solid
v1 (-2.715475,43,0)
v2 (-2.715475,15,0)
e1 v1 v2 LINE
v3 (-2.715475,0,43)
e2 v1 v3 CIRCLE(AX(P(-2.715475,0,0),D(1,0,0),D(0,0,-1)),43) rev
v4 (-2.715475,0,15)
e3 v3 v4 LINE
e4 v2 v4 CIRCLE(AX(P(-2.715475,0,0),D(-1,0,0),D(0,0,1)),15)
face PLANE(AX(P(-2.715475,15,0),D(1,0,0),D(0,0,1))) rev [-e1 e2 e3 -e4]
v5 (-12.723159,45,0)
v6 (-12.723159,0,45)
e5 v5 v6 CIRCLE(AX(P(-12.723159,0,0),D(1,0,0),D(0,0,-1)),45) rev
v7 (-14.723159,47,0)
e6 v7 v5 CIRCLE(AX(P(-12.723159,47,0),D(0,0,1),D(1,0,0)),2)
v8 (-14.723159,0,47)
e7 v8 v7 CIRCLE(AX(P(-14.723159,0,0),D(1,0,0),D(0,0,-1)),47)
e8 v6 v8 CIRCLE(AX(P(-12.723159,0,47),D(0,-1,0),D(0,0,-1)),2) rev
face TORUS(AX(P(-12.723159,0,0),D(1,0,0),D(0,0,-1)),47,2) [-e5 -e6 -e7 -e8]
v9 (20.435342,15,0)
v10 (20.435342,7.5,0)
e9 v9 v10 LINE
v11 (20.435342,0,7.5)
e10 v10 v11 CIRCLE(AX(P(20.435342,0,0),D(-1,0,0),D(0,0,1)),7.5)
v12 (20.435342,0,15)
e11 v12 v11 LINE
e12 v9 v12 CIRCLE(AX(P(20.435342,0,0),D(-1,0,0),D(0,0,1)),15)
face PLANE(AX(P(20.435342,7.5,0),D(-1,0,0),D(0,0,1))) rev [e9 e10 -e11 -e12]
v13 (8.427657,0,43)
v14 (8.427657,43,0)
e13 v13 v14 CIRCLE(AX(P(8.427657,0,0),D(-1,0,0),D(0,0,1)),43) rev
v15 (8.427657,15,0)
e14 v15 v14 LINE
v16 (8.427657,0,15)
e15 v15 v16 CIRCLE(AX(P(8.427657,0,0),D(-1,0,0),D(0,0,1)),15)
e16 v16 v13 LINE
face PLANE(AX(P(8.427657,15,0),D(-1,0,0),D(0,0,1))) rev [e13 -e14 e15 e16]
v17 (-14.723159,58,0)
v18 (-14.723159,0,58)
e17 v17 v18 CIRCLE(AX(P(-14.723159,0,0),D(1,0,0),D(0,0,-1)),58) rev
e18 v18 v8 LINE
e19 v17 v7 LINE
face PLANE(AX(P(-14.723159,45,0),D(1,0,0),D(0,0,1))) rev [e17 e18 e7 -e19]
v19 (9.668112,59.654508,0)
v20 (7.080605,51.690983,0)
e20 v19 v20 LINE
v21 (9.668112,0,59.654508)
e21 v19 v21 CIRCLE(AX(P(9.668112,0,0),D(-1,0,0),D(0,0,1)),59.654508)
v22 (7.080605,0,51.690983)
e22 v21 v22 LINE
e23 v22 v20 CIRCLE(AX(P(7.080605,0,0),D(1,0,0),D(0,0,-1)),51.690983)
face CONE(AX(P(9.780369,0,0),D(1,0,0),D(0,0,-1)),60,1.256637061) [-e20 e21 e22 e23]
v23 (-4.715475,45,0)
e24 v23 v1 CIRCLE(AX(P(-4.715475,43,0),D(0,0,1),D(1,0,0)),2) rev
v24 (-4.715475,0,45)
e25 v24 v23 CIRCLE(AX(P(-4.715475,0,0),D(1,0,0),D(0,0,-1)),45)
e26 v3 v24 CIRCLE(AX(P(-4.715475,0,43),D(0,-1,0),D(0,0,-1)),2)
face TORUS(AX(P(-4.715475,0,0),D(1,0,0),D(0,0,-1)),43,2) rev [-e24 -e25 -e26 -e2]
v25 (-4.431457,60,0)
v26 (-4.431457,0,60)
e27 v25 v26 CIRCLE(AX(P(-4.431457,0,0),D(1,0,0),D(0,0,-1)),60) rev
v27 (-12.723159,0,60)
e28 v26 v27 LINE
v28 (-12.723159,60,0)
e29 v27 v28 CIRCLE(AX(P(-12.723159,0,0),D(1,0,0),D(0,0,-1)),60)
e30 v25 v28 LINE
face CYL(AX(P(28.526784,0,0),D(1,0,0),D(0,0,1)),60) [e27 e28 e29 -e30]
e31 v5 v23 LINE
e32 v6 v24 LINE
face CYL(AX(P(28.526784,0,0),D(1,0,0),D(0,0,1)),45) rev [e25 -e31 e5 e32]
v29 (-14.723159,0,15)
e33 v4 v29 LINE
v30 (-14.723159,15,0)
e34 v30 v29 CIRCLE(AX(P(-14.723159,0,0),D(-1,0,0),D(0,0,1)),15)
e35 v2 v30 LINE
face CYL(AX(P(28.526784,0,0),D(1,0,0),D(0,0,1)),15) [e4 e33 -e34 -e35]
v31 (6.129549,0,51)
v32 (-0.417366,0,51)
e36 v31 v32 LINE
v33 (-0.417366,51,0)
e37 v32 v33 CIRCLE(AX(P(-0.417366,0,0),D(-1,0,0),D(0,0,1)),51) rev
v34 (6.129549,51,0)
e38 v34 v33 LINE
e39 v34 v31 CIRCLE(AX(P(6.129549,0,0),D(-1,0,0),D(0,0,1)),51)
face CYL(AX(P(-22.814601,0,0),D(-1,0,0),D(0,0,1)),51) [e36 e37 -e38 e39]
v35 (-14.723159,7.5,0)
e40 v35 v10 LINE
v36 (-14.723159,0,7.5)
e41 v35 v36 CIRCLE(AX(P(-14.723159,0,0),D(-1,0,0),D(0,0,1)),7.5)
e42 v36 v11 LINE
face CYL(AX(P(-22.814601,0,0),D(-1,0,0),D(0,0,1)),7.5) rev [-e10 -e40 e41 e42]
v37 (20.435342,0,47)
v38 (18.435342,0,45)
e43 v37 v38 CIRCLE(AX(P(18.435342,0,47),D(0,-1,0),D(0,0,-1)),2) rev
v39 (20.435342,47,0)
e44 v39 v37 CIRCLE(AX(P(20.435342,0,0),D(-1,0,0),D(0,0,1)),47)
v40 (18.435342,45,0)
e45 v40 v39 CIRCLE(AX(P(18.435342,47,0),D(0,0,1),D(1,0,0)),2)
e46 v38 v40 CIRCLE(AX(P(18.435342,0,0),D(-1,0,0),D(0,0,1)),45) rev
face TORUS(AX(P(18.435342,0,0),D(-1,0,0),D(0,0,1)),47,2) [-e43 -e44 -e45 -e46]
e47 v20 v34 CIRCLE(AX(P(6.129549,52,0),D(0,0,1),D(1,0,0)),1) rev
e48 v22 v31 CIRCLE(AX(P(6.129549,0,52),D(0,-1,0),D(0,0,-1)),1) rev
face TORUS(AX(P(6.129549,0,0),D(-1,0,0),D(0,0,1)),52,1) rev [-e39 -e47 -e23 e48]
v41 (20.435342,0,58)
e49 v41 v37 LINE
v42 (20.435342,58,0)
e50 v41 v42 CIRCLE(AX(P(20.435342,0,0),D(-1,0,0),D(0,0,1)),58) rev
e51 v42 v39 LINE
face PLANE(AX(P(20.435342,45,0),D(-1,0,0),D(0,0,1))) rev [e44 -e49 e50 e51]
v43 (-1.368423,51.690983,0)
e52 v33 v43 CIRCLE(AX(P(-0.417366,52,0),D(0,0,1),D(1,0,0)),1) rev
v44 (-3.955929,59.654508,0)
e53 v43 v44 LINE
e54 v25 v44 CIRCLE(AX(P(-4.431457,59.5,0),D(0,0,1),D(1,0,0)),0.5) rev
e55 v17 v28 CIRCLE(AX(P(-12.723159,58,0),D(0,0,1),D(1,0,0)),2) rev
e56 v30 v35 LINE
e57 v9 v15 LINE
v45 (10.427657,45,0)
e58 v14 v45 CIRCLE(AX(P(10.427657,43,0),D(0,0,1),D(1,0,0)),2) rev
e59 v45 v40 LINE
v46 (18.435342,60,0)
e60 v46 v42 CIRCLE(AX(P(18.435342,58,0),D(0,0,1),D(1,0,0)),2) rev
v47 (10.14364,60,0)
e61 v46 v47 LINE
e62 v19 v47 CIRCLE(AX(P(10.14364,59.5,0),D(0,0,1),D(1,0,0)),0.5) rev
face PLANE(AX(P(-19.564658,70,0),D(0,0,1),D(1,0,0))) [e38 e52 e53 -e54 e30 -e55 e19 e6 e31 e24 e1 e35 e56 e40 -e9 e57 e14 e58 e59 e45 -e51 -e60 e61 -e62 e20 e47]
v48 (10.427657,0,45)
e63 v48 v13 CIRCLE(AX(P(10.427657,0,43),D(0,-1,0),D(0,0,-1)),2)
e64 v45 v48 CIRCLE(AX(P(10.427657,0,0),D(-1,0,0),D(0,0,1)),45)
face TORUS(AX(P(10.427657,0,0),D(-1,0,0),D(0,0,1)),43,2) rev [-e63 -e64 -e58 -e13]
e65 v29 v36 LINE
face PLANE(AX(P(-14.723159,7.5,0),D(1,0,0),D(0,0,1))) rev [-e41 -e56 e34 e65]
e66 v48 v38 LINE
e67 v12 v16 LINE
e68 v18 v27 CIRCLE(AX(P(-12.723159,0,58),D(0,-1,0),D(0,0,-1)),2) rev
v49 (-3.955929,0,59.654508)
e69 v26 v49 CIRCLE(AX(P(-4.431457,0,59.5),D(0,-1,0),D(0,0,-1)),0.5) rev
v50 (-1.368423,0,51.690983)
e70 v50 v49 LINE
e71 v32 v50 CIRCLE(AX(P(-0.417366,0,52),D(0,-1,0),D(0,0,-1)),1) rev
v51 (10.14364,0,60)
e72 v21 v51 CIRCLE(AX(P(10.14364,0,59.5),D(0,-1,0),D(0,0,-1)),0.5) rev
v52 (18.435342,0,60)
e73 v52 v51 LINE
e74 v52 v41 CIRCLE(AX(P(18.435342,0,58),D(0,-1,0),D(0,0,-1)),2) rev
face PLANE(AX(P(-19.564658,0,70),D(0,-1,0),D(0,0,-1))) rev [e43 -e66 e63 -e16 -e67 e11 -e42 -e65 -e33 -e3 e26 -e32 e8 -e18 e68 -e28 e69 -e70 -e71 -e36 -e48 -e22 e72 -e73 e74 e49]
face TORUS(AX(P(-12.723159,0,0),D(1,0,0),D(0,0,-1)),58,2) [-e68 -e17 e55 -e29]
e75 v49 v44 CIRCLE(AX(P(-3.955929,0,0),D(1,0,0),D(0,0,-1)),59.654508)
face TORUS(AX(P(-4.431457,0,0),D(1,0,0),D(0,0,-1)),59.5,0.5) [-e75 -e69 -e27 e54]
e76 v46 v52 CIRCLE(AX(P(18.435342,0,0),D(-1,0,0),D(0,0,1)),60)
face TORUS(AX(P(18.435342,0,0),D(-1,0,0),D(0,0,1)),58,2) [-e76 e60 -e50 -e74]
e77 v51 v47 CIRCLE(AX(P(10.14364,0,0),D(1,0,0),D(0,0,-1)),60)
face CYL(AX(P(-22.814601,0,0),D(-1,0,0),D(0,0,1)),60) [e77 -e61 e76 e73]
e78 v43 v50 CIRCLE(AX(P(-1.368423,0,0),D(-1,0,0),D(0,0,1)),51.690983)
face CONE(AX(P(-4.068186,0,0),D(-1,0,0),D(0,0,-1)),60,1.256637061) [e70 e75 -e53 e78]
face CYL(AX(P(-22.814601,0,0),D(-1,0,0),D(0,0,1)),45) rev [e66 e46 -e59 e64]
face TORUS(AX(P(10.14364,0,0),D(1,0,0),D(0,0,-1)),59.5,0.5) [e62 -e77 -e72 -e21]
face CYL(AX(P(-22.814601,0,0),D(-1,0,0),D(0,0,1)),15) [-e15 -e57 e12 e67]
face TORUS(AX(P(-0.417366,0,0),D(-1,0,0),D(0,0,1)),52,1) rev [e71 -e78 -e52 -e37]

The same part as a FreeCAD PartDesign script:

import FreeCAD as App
import Part
import Sketcher

V = App.Vector
Q = App.Units.Quantity


def edges_at(feature, points):
    """Names of the edges that pass closest to the given points."""
    edges = feature.Shape.Edges
    near = lambda p: min(range(len(edges)), key=lambda i: edges[i].distToShape(Part.Vertex(*p))[0])
    return sorted({f"Edge{near(p) + 1}" for p in points})


def add_polygon(sketch, points):
    """Adds a closed chain of lines whose ends are joined by coincident constraints."""
    first, n = sketch.GeometryCount, len(points)
    for a, b in zip(points, points[1:] + points[:1]):
        sketch.addGeometry(Part.LineSegment(App.Vector(*a, 0), App.Vector(*b, 0)), False)
    for i in range(n):
        sketch.addConstraint(Sketcher.Constraint("Coincident", first + i, 2, first + (i + 1) % n, 1))

doc = App.newDocument("Part")
body = doc.addObject("PartDesign::Body", "Body")

sketch1 = body.newObject("Sketcher::SketchObject", "Sketch")
sketch1.AttachmentSupport = (doc.getObject("XY_Plane"), [""])
sketch1.MapMode = "FlatFace"
add_polygon(sketch1, [(2.9, 7.5), (20.4, 7.5), (20.4, 15), (8.4, 15), (8.4, 45), (20.4, 45), (20.4, 60), (9.8, 60), (6.9, 51), (2.9, 51)])
sketch1.addConstraint(Sketcher.Constraint("Horizontal", 0))
sketch1.addConstraint(Sketcher.Constraint("Vertical", 1))
sketch1.addConstraint(Sketcher.Constraint("Horizontal", 2))
sketch1.addConstraint(Sketcher.Constraint("Vertical", 3))
sketch1.addConstraint(Sketcher.Constraint("Horizontal", 4))
sketch1.addConstraint(Sketcher.Constraint("Vertical", 5))
sketch1.addConstraint(Sketcher.Constraint("Horizontal", 6))
sketch1.addConstraint(Sketcher.Constraint("Horizontal", 8))
sketch1.addConstraint(Sketcher.Constraint("Vertical", 9))
sketch1.addConstraint(Sketcher.Constraint("Vertical", 1, 2, 4, 2))
sketch1.addConstraint(Sketcher.Constraint("DistanceX", 8, 2, 8, 1, Q("4 mm")))
sketch1.addConstraint(Sketcher.Constraint("DistanceY", 3, 1, 3, 2, Q("30 mm")))
sketch1.addConstraint(Sketcher.Constraint("DistanceY", 5, 1, 5, 2, Q("15 mm")))
sketch1.addConstraint(Sketcher.Constraint("Angle", 7, Q("-108 deg")))
sketch1.addConstraint(Sketcher.Constraint("DistanceY", 1, 1, 1, 2, Q("7.5 mm")))
sketch1.addConstraint(Sketcher.Constraint("DistanceY", 9, 2, 9, 1, Q("43.5 mm")))
sketch1.addConstraint(Sketcher.Constraint("DistanceY", -1, 1, 1, 2, Q("15 mm")))
sketch1.addConstraint(Sketcher.Constraint("DistanceX", 0, 1, 0, 2, Q("17.579251 mm")))
sketch1.addConstraint(Sketcher.Constraint("DistanceX", 2, 2, 2, 1, Q("12.007685 mm")))
sketch1.addConstraint(Sketcher.Constraint("DistanceX", -1, 1, 0, 2, Q("20.435342 mm")))
revolution = body.newObject("PartDesign::Revolution", "Revolution")
revolution.Profile = sketch1
revolution.ReferenceAxis = (sketch1, ["H_Axis"])
revolution.Angle = 360
doc.recompute()

datumplane = body.newObject("PartDesign::Plane", "DatumPlane")
datumplane.AttachmentSupport = (doc.getObject("YZ_Plane"), [""])
datumplane.MapMode = "FlatFace"
datumplane.AttachmentOffset = App.Placement(V(0, 0, 2.856091), App.Rotation())
mirrored = body.newObject("PartDesign::Mirrored", "Mirrored")
mirrored.Originals = [revolution]
mirrored.MirrorPlane = (datumplane, [""])
body.Tip = mirrored
doc.recompute()

fillet = body.newObject("PartDesign::Fillet", "Fillet")
fillet.Base = (mirrored, edges_at(mirrored, [(-4.068, 0, -60), (9.78, 0, -60)]))
fillet.Radius = 0.5
doc.recompute()

fillet2 = body.newObject("PartDesign::Fillet", "Fillet001")
fillet2.Base = (fillet, edges_at(fillet, [(-1.144, 0, -51), (6.856, 0, -51)]))
fillet2.Radius = 1
doc.recompute()

fillet3 = body.newObject("PartDesign::Fillet", "Fillet002")
fillet3.Base = (fillet2, edges_at(fillet2, [(-14.723, 0, -60), (20.435, 0, -60)]))
fillet3.Radius = 2

sketch2 = body.newObject("Sketcher::SketchObject", "Sketch001")
sketch2.AttachmentSupport = (doc.getObject("YZ_Plane"), [""])
sketch2.MapMode = "FlatFace"
sketch2.AttachmentOffset = App.Placement(V(0, 0, 20.435342), App.Rotation())
add_polygon(sketch2, [(70, 70), (0, 70), (0, 0), (70, 0)])
sketch2.addConstraint(Sketcher.Constraint("Horizontal", 0))
sketch2.addConstraint(Sketcher.Constraint("Vertical", 1))
sketch2.addConstraint(Sketcher.Constraint("Horizontal", 2))
sketch2.addConstraint(Sketcher.Constraint("Vertical", 3))
sketch2.addConstraint(Sketcher.Constraint("Coincident", 1, 2, -1, 1))
sketch2.addConstraint(Sketcher.Constraint("Equal", 2, 1))
sketch2.addConstraint(Sketcher.Constraint("DistanceX", 0, 2, 0, 1, Q("70 mm")))
pocket1 = body.newObject("PartDesign::Pocket", "Pocket")
pocket1.Profile = sketch2
pocket1.Length = 40
doc.recompute()

fillet4 = body.newObject("PartDesign::Fillet", "Fillet003")
fillet4.Base = (pocket1, edges_at(pocket1, [
    (-14.723, -31.82, -31.82),
    (-2.715, -31.82, -31.82),
    (20.435, -31.82, -31.82),
    (8.428, -31.82, -31.82),
]))
fillet4.Radius = 2

doc.recompute()
